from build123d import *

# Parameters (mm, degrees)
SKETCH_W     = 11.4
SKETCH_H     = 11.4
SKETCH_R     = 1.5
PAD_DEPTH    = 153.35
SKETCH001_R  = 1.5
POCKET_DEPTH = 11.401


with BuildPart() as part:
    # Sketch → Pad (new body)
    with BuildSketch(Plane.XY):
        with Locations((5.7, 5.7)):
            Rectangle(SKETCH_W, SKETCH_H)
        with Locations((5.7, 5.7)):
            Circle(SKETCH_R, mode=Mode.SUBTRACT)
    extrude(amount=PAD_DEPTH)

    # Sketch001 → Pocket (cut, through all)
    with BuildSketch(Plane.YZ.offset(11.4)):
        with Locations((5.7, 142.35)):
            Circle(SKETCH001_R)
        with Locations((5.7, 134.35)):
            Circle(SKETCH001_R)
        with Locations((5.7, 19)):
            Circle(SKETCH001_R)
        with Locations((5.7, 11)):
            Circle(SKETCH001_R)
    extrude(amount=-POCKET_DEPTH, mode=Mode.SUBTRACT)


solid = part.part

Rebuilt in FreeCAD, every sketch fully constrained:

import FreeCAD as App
import Part
import Sketcher
from FreeCAD import Vector
Q = App.Units.Quantity


def add_polygon(sketch, points):
    """Adds a closed chain of lines whose ends are joined by coincident constraints."""
    first, n = sketch.GeometryCount, len(points)
    for a, b in zip(points, points[1:] + points[:1]):
        sketch.addGeometry(Part.LineSegment(App.Vector(*a, 0), App.Vector(*b, 0)), False)
    for i in range(n):
        sketch.addConstraint(Sketcher.Constraint("Coincident", first + i, 2, first + (i + 1) % n, 1))

doc = App.newDocument("Part")
params = doc.addObject("Spreadsheet::Sheet", "Params")
for row, (alias, value) in enumerate([
    ("sketch1_diameter", "3 mm"),
    ("sketch1_width", "11.4 mm"),
    ("pad1_length", "153.35 mm"),
    ("sketch2_diameter", "3 mm"),
], start=1):
    params.set(f"A{row}", alias)
    params.set(f"B{row}", "=" + value)
    params.setAlias(f"B{row}", alias)

body = doc.addObject("PartDesign::Body", "Body")

# Sketch on XY plane
sketch1 = body.newObject("Sketcher::SketchObject", "Sketch")
sketch1.AttachmentSupport = (doc.getObject("XY_Plane"), [""])
sketch1.MapMode = "FlatFace"
add_polygon(sketch1, [(0, 11.4), (0, 0), (11.4, 0), (11.4, 11.4)])  # lines 0-3
sketch1.addGeometry(Part.Circle(Vector(5.7, 5.7, 0), Vector(0, 0, 1), 1.5), False)  # 4
sketch1.addConstraint([
    Sketcher.Constraint("Vertical", 0),
    Sketcher.Constraint("Horizontal", 1),
    Sketcher.Constraint("Vertical", 2),
    Sketcher.Constraint("Horizontal", 3),
    Sketcher.Constraint("Coincident", 0, 2, -1, 1),
    Sketcher.Constraint("Equal", 3, 0),
    Sketcher.Constraint("Diameter", 4, Q("3 mm")),
    Sketcher.Constraint("DistanceX", 1, 1, 1, 2, Q("11.4 mm")),
    Sketcher.Constraint("DistanceX", -1, 1, 4, 3, Q("5.7 mm")),
    Sketcher.Constraint("DistanceY", -1, 1, 4, 3, Q("5.7 mm")),
])
sketch1.setExpression("Constraints[10]", "Params.sketch1_diameter")
sketch1.setExpression("Constraints[11]", "Params.sketch1_width")
pad1 = body.newObject("PartDesign::Pad", "Pad")
pad1.Profile = sketch1
pad1.setExpression("Length", "Params.pad1_length")

# Sketch on YZ plane
sketch2 = body.newObject("Sketcher::SketchObject", "Sketch001")
sketch2.AttachmentSupport = (doc.getObject("YZ_Plane"), [""])
sketch2.MapMode = "FlatFace"
sketch2.AttachmentOffset = App.Placement(Vector(0, 0, 11.4), App.Rotation())
sketch2.addGeometry([
    Part.Circle(Vector(5.7, 142.3, 0), Vector(0, 0, 1), 1.5),
    Part.Circle(Vector(5.7, 134.3, 0), Vector(0, 0, 1), 1.5),
    Part.Circle(Vector(5.7, 19, 0), Vector(0, 0, 1), 1.5),
    Part.Circle(Vector(5.7, 11, 0), Vector(0, 0, 1), 1.5),
], False)
sketch2.addConstraint([
    Sketcher.Constraint("Equal", 0, 1),
    Sketcher.Constraint("Equal", 1, 2),
    Sketcher.Constraint("Equal", 2, 3),
    Sketcher.Constraint("Vertical", 0, 3, 1, 3),
    Sketcher.Constraint("Vertical", 1, 3, 2, 3),
    Sketcher.Constraint("Vertical", 2, 3, 3, 3),
    Sketcher.Constraint("Diameter", 0, Q("3 mm")),
    Sketcher.Constraint("DistanceY", -1, 1, 2, 3, Q("19 mm")),
    Sketcher.Constraint("DistanceY", -1, 1, 3, 3, Q("11 mm")),
    Sketcher.Constraint("DistanceY", 1, 3, 0, 3, Q("8 mm")),
    Sketcher.Constraint("DistanceX", -1, 1, 0, 3, Q("5.7 mm")),
    Sketcher.Constraint("DistanceY", -1, 1, 0, 3, Q("142.35 mm")),
])
sketch2.setExpression("Constraints[6]", "Params.sketch2_diameter")
pocket1 = body.newObject("PartDesign::Pocket", "Pocket")
pocket1.Profile = sketch2
pocket1.Type = "ThroughAll"

doc.recompute()
